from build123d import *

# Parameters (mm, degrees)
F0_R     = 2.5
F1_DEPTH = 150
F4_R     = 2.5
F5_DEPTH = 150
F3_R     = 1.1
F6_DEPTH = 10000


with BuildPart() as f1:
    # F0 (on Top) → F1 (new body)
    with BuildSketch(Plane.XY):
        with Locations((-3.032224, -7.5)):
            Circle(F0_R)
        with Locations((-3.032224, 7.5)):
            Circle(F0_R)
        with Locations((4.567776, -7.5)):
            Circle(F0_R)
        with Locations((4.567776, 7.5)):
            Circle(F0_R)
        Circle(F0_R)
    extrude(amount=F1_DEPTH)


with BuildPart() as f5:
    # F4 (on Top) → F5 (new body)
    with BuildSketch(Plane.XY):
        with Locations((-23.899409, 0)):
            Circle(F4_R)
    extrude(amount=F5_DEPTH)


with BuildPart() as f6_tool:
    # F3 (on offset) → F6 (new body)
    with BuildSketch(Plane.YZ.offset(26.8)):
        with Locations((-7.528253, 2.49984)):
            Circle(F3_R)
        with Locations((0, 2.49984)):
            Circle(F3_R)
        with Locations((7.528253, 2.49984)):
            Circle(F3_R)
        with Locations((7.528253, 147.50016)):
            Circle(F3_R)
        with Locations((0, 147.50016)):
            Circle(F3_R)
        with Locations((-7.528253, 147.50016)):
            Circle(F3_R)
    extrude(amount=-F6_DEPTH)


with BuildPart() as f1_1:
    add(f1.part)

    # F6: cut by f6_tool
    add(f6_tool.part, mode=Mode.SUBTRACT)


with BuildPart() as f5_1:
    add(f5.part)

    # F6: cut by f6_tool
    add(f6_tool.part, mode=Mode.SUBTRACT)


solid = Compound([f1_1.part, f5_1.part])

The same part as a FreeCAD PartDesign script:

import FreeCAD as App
import Part
import Sketcher
from FreeCAD import Vector

doc = App.newDocument("Part")
params = doc.addObject("Spreadsheet::Sheet", "Params")
for row, (alias, value) in enumerate([
    ("sketch1_diameter", "5 mm"),
    ("pad1_length", "150 mm"),
    ("sketch2_diameter", "5 mm"),
    ("pad2_length", "150 mm"),
    ("sketch3_diameter", "2.2 mm"),
    ("pad3_length", "10000 mm"),
], start=1):
    params.set(f"A{row}", alias)
    params.set(f"B{row}", "=" + value)
    params.setAlias(f"B{row}", alias)

body = doc.addObject("PartDesign::Body", "Body")
body.AllowCompound = True

sketch1 = body.newObject("Sketcher::SketchObject", "Sketch")
sketch1.AttachmentSupport = (doc.getObject("XY_Plane"), [""])
sketch1.MapMode = "FlatFace"
sketch1.addGeometry([
    Part.Circle(Vector(-3, -7.5, 0), Vector(0, 0, 1), 2.5),
    Part.Circle(Vector(-3, 7.5, 0), Vector(0, 0, 1), 2.5),
    Part.Circle(Vector(4.6, -7.5, 0), Vector(0, 0, 1), 2.5),
    Part.Circle(Vector(4.6, 7.5, 0), Vector(0, 0, 1), 2.5),
    Part.Circle(Vector(0, 0, 0), Vector(0, 0, 1), 2.5),
], False)
sketch1.addConstraint([
    Sketcher.Constraint("Coincident", 4, 3, -1, 1),
    Sketcher.Constraint("Equal", 0, 1),
    Sketcher.Constraint("Equal", 1, 2),
    Sketcher.Constraint("Equal", 2, 3),
    Sketcher.Constraint("Equal", 3, 4),
    Sketcher.Constraint("Symmetric", 0, 3, 1, 3, -1),
    Sketcher.Constraint("Symmetric", 2, 3, 3, 3, -1),
    Sketcher.Constraint("Horizontal", 0, 3, 2, 3),
    Sketcher.Constraint("Diameter", 0, 5.0),
    Sketcher.Constraint("DistanceY", 0, 3, 1, 3, 15.0),
    Sketcher.Constraint("DistanceX", 0, 3, 2, 3, 7.6),
    Sketcher.Constraint("DistanceX", 0, 3, -1, 1, 3.032224),
])
sketch1.setExpression("Constraints[8]", "Params.sketch1_diameter")
pad1 = body.newObject("PartDesign::Pad", "Pad")
pad1.Profile = sketch1
pad1.setExpression("Length", "Params.pad1_length")
body2 = doc.addObject("PartDesign::Body", "Body001")

sketch2 = body2.newObject("Sketcher::SketchObject", "Sketch001")
sketch2.AttachmentSupport = (doc.getObject("XY_Plane001"), [""])
sketch2.MapMode = "FlatFace"
sketch2.addGeometry(Part.Circle(Vector(-23.9, 0, 0), Vector(0, 0, 1), 2.5), False)
sketch2.addConstraint([
    Sketcher.Constraint("PointOnObject", 0, 3, -1),
    Sketcher.Constraint("Diameter", 0, 5.0),
    Sketcher.Constraint("DistanceX", 0, 3, -1, 1, 23.899409),
])
sketch2.setExpression("Constraints[1]", "Params.sketch2_diameter")
pad2 = body2.newObject("PartDesign::Pad", "Pad001")
pad2.Profile = sketch2
pad2.setExpression("Length", "Params.pad2_length")
body3 = doc.addObject("PartDesign::Body", "Body002")
body3.AllowCompound = True

sketch3 = body3.newObject("Sketcher::SketchObject", "Sketch002")
sketch3.AttachmentSupport = (doc.getObject("YZ_Plane002"), [""])
sketch3.MapMode = "FlatFace"
sketch3.AttachmentOffset = App.Placement(Vector(0, 0, 26.8), App.Rotation())
sketch3.addGeometry([
    Part.Circle(Vector(-7.5, 2.5, 0), Vector(0, 0, 1), 1.1),
    Part.Circle(Vector(0, 2.5, 0), Vector(0, 0, 1), 1.1),
    Part.Circle(Vector(7.5, 2.5, 0), Vector(0, 0, 1), 1.1),
    Part.Circle(Vector(7.5, 147.5, 0), Vector(0, 0, 1), 1.1),
    Part.Circle(Vector(0, 147.5, 0), Vector(0, 0, 1), 1.1),
    Part.Circle(Vector(-7.5, 147.5, 0), Vector(0, 0, 1), 1.1),
], False)
sketch3.addConstraint([
    Sketcher.Constraint("Equal", 0, 1),
    Sketcher.Constraint("Equal", 1, 2),
    Sketcher.Constraint("Equal", 2, 3),
    Sketcher.Constraint("Equal", 3, 4),
    Sketcher.Constraint("Equal", 4, 5),
    Sketcher.Constraint("Symmetric", 0, 3, 2, 3, -2),
    Sketcher.Constraint("Symmetric", 3, 3, 5, 3, -2),
    Sketcher.Constraint("PointOnObject", 1, 3, -2),
    Sketcher.Constraint("PointOnObject", 4, 3, -2),
    Sketcher.Constraint("Horizontal", 0, 3, 1, 3),
    Sketcher.Constraint("Horizontal", 3, 3, 4, 3),
    Sketcher.Constraint("Vertical", 2, 3, 3, 3),
    Sketcher.Constraint("Diameter", 0, 2.2),
    Sketcher.Constraint("DistanceY", -1, 1, 0, 3, 2.49984),
    Sketcher.Constraint("DistanceY", -1, 1, 3, 3, 147.50016),
    Sketcher.Constraint("DistanceX", 0, 3, -1, 1, 7.528253),
])
sketch3.setExpression("Constraints[12]", "Params.sketch3_diameter")
pad3 = body3.newObject("PartDesign::Pad", "Pad002")
pad3.Profile = sketch3
pad3.setExpression("Length", "Params.pad3_length")
pad3.Reversed = True
body.AllowCompound = True
doc.recompute()

body4 = doc.addObject("PartDesign::Body", "Body003")
body4.BaseFeature = body3
boolean = body.newObject("PartDesign::Boolean", "Boolean")
boolean.Type = "Cut"
boolean.addObjects([body4])
doc.recompute()

boolean2 = body2.newObject("PartDesign::Boolean", "Boolean001")
boolean2.Type = "Cut"
boolean2.addObjects([body3])

doc.recompute()
